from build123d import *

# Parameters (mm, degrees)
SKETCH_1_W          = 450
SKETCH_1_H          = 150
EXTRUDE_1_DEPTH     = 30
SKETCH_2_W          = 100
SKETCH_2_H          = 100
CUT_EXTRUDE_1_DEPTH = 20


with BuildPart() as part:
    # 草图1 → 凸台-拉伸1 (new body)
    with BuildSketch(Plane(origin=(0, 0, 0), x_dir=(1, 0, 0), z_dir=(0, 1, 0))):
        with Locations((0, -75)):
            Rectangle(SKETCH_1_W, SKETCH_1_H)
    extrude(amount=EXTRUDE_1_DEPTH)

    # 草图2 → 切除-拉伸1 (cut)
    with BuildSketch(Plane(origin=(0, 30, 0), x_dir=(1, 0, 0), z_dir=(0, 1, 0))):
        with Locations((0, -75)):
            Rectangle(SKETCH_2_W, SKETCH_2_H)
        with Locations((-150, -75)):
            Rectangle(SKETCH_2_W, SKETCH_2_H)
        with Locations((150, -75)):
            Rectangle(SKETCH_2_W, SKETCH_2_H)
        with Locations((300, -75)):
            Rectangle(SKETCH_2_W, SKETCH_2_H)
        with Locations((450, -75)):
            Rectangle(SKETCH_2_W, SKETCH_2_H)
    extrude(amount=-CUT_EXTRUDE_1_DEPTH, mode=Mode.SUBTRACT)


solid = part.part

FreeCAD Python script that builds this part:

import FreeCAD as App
import Part
import Sketcher
Q = App.Units.Quantity

doc = App.newDocument("Part")
body = doc.addObject("PartDesign::Body", "Body")

# Sketch on XZ plane
sketch1 = body.newObject("Sketcher::SketchObject", "Sketch")
sketch1.AttachmentSupport = (doc.getObject("XZ_Plane"), [""])
sketch1.MapMode = "FlatFace"
sketch1.addGeometry([
    Part.LineSegment(App.Vector(-225, 0, 0), App.Vector(-225, 150, 0)),
    Part.LineSegment(App.Vector(-225, 150, 0), App.Vector(225, 150, 0)),
    Part.LineSegment(App.Vector(225, 150, 0), App.Vector(225, 0, 0)),
    Part.LineSegment(App.Vector(225, 0, 0), App.Vector(-225, 0, 0)),
], False)
sketch1.addConstraint([
    Sketcher.Constraint("Coincident", 0, 2, 1, 1),
    Sketcher.Constraint("Coincident", 1, 2, 2, 1),
    Sketcher.Constraint("Coincident", 2, 2, 3, 1),
    Sketcher.Constraint("Coincident", 3, 2, 0, 1),
    Sketcher.Constraint("Vertical", 0),
    Sketcher.Constraint("Horizontal", 1),
    Sketcher.Constraint("Vertical", 2),
    Sketcher.Constraint("Horizontal", 3),
    Sketcher.Constraint("Symmetric", 2, 2, 3, 2, -1, 1),
    Sketcher.Constraint("DistanceX", 1, 1, 1, 2, Q("450 mm")),
    Sketcher.Constraint("DistanceY", 0, 1, 0, 2, Q("150 mm")),
])
pad1 = body.newObject("PartDesign::Pad", "Pad")
pad1.Profile = sketch1
pad1.Length = 30
pad1.Reversed = True

# Sketch on XZ plane
sketch2 = body.newObject("Sketcher::SketchObject", "Sketch001")
sketch2.AttachmentSupport = (doc.getObject("XZ_Plane"), [""])
sketch2.MapMode = "FlatFace"
sketch2.AttachmentOffset = App.Placement(App.Vector(0, 0, -30), App.Rotation())
sketch2.addGeometry([
    Part.LineSegment(App.Vector(-50, 25, 0), App.Vector(-50, 125, 0)),  # 0
    Part.LineSegment(App.Vector(-50, 125, 0), App.Vector(50, 125, 0)),  # 1
    Part.LineSegment(App.Vector(50, 125, 0), App.Vector(50, 25, 0)),  # 2
    Part.LineSegment(App.Vector(50, 25, 0), App.Vector(-50, 25, 0)),  # 3
    Part.LineSegment(App.Vector(-200, 25, 0), App.Vector(-200, 125, 0)),  # 4
    Part.LineSegment(App.Vector(-200, 125, 0), App.Vector(-100, 125, 0)),  # 5
    Part.LineSegment(App.Vector(-100, 125, 0), App.Vector(-100, 25, 0)),  # 6
    Part.LineSegment(App.Vector(-100, 25, 0), App.Vector(-200, 25, 0)),  # 7
    Part.LineSegment(App.Vector(100, 25, 0), App.Vector(100, 125, 0)),  # 8
    Part.LineSegment(App.Vector(100, 125, 0), App.Vector(200, 125, 0)),  # 9
    Part.LineSegment(App.Vector(200, 125, 0), App.Vector(200, 25, 0)),  # 10
    Part.LineSegment(App.Vector(200, 25, 0), App.Vector(100, 25, 0)),  # 11
    Part.LineSegment(App.Vector(250, 25, 0), App.Vector(250, 125, 0)),  # 12
    Part.LineSegment(App.Vector(250, 125, 0), App.Vector(350, 125, 0)),  # 13
    Part.LineSegment(App.Vector(350, 125, 0), App.Vector(350, 25, 0)),  # 14
    Part.LineSegment(App.Vector(350, 25, 0), App.Vector(250, 25, 0)),  # 15
    Part.LineSegment(App.Vector(400, 25, 0), App.Vector(400, 125, 0)),  # 16
    Part.LineSegment(App.Vector(400, 125, 0), App.Vector(500, 125, 0)),  # 17
    Part.LineSegment(App.Vector(500, 125, 0), App.Vector(500, 25, 0)),  # 18
    Part.LineSegment(App.Vector(500, 25, 0), App.Vector(400, 25, 0)),  # 19
], False)
sketch2.addConstraint([
    Sketcher.Constraint("Coincident", 0, 2, 1, 1),
    Sketcher.Constraint("Coincident", 1, 2, 2, 1),
    Sketcher.Constraint("Coincident", 2, 2, 3, 1),
    Sketcher.Constraint("Coincident", 3, 2, 0, 1),
    Sketcher.Constraint("Coincident", 4, 2, 5, 1),
    Sketcher.Constraint("Coincident", 5, 2, 6, 1),
    Sketcher.Constraint("Coincident", 6, 2, 7, 1),
    Sketcher.Constraint("Coincident", 7, 2, 4, 1),
    Sketcher.Constraint("Coincident", 8, 2, 9, 1),
    Sketcher.Constraint("Coincident", 9, 2, 10, 1),
    Sketcher.Constraint("Coincident", 10, 2, 11, 1),
    Sketcher.Constraint("Coincident", 11, 2, 8, 1),
    Sketcher.Constraint("Coincident", 12, 2, 13, 1),
    Sketcher.Constraint("Coincident", 13, 2, 14, 1),
    Sketcher.Constraint("Coincident", 14, 2, 15, 1),
    Sketcher.Constraint("Coincident", 15, 2, 12, 1),
    Sketcher.Constraint("Coincident", 16, 2, 17, 1),
    Sketcher.Constraint("Coincident", 17, 2, 18, 1),
    Sketcher.Constraint("Coincident", 18, 2, 19, 1),
    Sketcher.Constraint("Coincident", 19, 2, 16, 1),
    Sketcher.Constraint("Vertical", 0),
    Sketcher.Constraint("Horizontal", 1),
    Sketcher.Constraint("Vertical", 2),
    Sketcher.Constraint("Horizontal", 3),
    Sketcher.Constraint("Vertical", 4),
    Sketcher.Constraint("Horizontal", 5),
    Sketcher.Constraint("Vertical", 6),
    Sketcher.Constraint("Horizontal", 7),
    Sketcher.Constraint("Vertical", 8),
    Sketcher.Constraint("Horizontal", 9),
    Sketcher.Constraint("Vertical", 10),
    Sketcher.Constraint("Horizontal", 11),
    Sketcher.Constraint("Vertical", 12),
    Sketcher.Constraint("Horizontal", 13),
    Sketcher.Constraint("Vertical", 14),
    Sketcher.Constraint("Horizontal", 15),
    Sketcher.Constraint("Vertical", 16),
    Sketcher.Constraint("Horizontal", 17),
    Sketcher.Constraint("Vertical", 18),
    Sketcher.Constraint("Horizontal", 19),
    Sketcher.Constraint("Symmetric", 5, 2, 8, 2, -2),
    Sketcher.Constraint("Symmetric", 7, 2, 10, 2, -2),
    Sketcher.Constraint("Horizontal", 1, 2, 4, 2),
    Sketcher.Constraint("Horizontal", 3, 2, 6, 2),
    Sketcher.Constraint("Horizontal", 9, 2, 12, 2),
    Sketcher.Constraint("Horizontal", 11, 2, 14, 2),
    Sketcher.Constraint("Horizontal", 13, 2, 16, 2),
    Sketcher.Constraint("Horizontal", 15, 2, 18, 2),
    Sketcher.Constraint("Equal", 3, 5),
    Sketcher.Constraint("Equal", 11, 13),
    Sketcher.Constraint("Equal", 15, 17),
    Sketcher.Constraint("Equal", 19, 0),
    Sketcher.Constraint("DistanceX", 1, 1, 1, 2, Q("100 mm")),
    Sketcher.Constraint("DistanceX", 0, 2, -1, 1, Q("50 mm")),
    Sketcher.Constraint("DistanceY", -1, 1, 0, 2, Q("125 mm")),
    Sketcher.Constraint("DistanceX", 4, 2, -1, 1, Q("200 mm")),
    Sketcher.Constraint("DistanceX", -1, 1, 12, 2, Q("250 mm")),
    Sketcher.Constraint("DistanceX", -1, 1, 16, 2, Q("400 mm")),
])
pocket1 = body.newObject("PartDesign::Pocket", "Pocket")
pocket1.Profile = sketch2
pocket1.Length = 20
pocket1.Reversed = True

doc.recompute()
